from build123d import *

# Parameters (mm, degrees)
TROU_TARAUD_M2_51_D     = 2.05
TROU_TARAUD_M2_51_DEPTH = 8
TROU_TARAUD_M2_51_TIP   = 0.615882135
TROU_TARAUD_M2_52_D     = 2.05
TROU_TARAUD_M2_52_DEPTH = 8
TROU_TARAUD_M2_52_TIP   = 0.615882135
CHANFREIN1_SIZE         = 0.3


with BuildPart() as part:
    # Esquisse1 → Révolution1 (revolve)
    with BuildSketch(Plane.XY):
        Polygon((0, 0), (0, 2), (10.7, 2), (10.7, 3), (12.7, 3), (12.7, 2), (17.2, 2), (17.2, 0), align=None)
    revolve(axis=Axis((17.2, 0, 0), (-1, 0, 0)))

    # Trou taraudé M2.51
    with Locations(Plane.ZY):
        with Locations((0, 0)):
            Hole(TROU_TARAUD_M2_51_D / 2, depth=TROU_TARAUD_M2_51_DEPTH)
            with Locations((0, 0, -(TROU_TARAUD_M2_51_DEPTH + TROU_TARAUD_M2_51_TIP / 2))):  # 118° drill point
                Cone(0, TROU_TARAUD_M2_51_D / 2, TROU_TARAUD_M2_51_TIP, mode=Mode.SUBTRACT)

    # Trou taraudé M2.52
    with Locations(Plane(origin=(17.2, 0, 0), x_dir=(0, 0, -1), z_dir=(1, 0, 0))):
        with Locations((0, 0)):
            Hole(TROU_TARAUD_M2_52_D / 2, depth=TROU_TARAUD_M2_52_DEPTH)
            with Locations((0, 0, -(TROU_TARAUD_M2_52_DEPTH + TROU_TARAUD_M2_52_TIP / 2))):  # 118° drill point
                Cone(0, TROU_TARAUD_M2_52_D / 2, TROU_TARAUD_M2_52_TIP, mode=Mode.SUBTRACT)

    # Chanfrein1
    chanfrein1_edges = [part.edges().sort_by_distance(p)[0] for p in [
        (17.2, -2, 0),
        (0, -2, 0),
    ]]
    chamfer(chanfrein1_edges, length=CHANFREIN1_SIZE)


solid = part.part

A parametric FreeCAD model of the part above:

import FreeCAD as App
import Part
import Sketcher


def edges_at(feature, points):
    """Names of the edges that pass closest to the given points."""
    edges = feature.Shape.Edges
    near = lambda p: min(range(len(edges)), key=lambda i: edges[i].distToShape(Part.Vertex(*p))[0])
    return sorted({f"Edge{near(p) + 1}" for p in points})

doc = App.newDocument("Part")
params = doc.addObject("Spreadsheet::Sheet", "Params")
for row, (alias, value) in enumerate([
    ("sketch1_width", "2 mm"),
    ("sketch1_height", "1 mm"),
    ("sketch1_width2", "17.2 mm"),
    ("sketch1_width3", "4.5 mm"),
    ("revolution_angle", "360 deg"),
    ("sketch2_diameter", "2.05 mm"),
    ("hole_diameter", "2.05 mm"),
    ("hole_depth", "8 mm"),
    ("sketch3_diameter", "2.05 mm"),
    ("hole2_diameter", "2.05 mm"),
    ("hole2_depth", "8 mm"),
    ("chamfer_size", "0.3 mm"),
], start=1):
    params.set(f"A{row}", alias)
    params.set(f"B{row}", "=" + value)
    params.setAlias(f"B{row}", alias)

body = doc.addObject("PartDesign::Body", "Body")

# Sketch on XY plane
sketch1 = body.newObject("Sketcher::SketchObject", "Sketch")
sketch1.AttachmentSupport = (doc.getObject("XY_Plane"), [""])
sketch1.MapMode = "FlatFace"
sketch1.addGeometry([
    Part.LineSegment(App.Vector(0, 2, 0), App.Vector(0, 0, 0)),  # 0
    Part.LineSegment(App.Vector(0, 0, 0), App.Vector(17.2, 0, 0)),  # 1
    Part.LineSegment(App.Vector(17.2, 0, 0), App.Vector(17.2, 2, 0)),  # 2
    Part.LineSegment(App.Vector(17.2, 2, 0), App.Vector(12.7, 2, 0)),  # 3
    Part.LineSegment(App.Vector(12.7, 2, 0), App.Vector(12.7, 3, 0)),  # 4
    Part.LineSegment(App.Vector(12.7, 3, 0), App.Vector(10.7, 3, 0)),  # 5
    Part.LineSegment(App.Vector(10.7, 3, 0), App.Vector(10.7, 2, 0)),  # 6
    Part.LineSegment(App.Vector(10.7, 2, 0), App.Vector(0, 2, 0)),  # 7
], False)
sketch1.addConstraint([
    Sketcher.Constraint("Coincident", 0, 2, 1, 1),
    Sketcher.Constraint("Coincident", 1, 2, 2, 1),
    Sketcher.Constraint("Coincident", 2, 2, 3, 1),
    Sketcher.Constraint("Coincident", 3, 2, 4, 1),
    Sketcher.Constraint("Coincident", 4, 2, 5, 1),
    Sketcher.Constraint("Coincident", 5, 2, 6, 1),
    Sketcher.Constraint("Coincident", 6, 2, 7, 1),
    Sketcher.Constraint("Coincident", 7, 2, 0, 1),
    Sketcher.Constraint("Vertical", 0),
    Sketcher.Constraint("Horizontal", 1),
    Sketcher.Constraint("Vertical", 2),
    Sketcher.Constraint("Horizontal", 3),
    Sketcher.Constraint("Vertical", 4),
    Sketcher.Constraint("Horizontal", 5),
    Sketcher.Constraint("Vertical", 6),
    Sketcher.Constraint("Horizontal", 7),
    Sketcher.Constraint("Coincident", 0, 2, -1, 1),
    Sketcher.Constraint("Horizontal", 3, 2, 6, 2),
    Sketcher.Constraint("Equal", 5, 0),
    Sketcher.Constraint("DistanceX", 5, 2, 5, 1, 2.0),
    Sketcher.Constraint("DistanceY", 4, 1, 4, 2, 1.0),
    Sketcher.Constraint("DistanceX", 1, 1, 1, 2, 17.2),
    Sketcher.Constraint("DistanceX", 3, 2, 3, 1, 4.5),
])
sketch1.setExpression("Constraints[19]", "Params.sketch1_width")
sketch1.setExpression("Constraints[20]", "Params.sketch1_height")
sketch1.setExpression("Constraints[21]", "Params.sketch1_width2")
sketch1.setExpression("Constraints[22]", "Params.sketch1_width3")
revolution = body.newObject("PartDesign::Revolution", "Revolution")
revolution.Profile = sketch1
revolution.ReferenceAxis = (sketch1, ["H_Axis"])
revolution.setExpression("Angle", "Params.revolution_angle")

# Sketch on YZ plane
sketch2 = body.newObject("Sketcher::SketchObject", "Sketch001")
sketch2.AttachmentSupport = (doc.getObject("YZ_Plane"), [""])
sketch2.MapMode = "FlatFace"
sketch2.addGeometry(Part.Circle(App.Vector(0, 0, 0), App.Vector(0, 0, 1), 1.025), False)
sketch2.addConstraint([
    Sketcher.Constraint("Coincident", 0, 3, -1, 1),
    Sketcher.Constraint("Diameter", 0, 2.05),
])
sketch2.setExpression("Constraints[1]", "Params.sketch2_diameter")
doc.recompute()
hole = body.newObject("PartDesign::Hole", "Hole")
hole.Profile = sketch2
hole.ThreadType = "None"
hole.setExpression("Diameter", "Params.hole_diameter")
hole.DepthType = "Dimension"
hole.setExpression("Depth", "Params.hole_depth")
hole.DrillPoint = "Angled"
hole.DrillPointAngle = 118
hole.Reversed = True

# Sketch on YZ plane
sketch3 = body.newObject("Sketcher::SketchObject", "Sketch002")
sketch3.AttachmentSupport = (doc.getObject("YZ_Plane"), [""])
sketch3.MapMode = "FlatFace"
sketch3.AttachmentOffset = App.Placement(App.Vector(0, 0, 17.2), App.Rotation())
sketch3.addGeometry(Part.Circle(App.Vector(0, 0, 0), App.Vector(0, 0, 1), 1.025), False)
sketch3.addConstraint([
    Sketcher.Constraint("Coincident", 0, 3, -1, 1),
    Sketcher.Constraint("Diameter", 0, 2.05),
])
sketch3.setExpression("Constraints[1]", "Params.sketch3_diameter")
doc.recompute()
hole2 = body.newObject("PartDesign::Hole", "Hole001")
hole2.Profile = sketch3
hole2.ThreadType = "None"
hole2.setExpression("Diameter", "Params.hole2_diameter")
hole2.DepthType = "Dimension"
hole2.setExpression("Depth", "Params.hole2_depth")
hole2.DrillPoint = "Angled"
hole2.DrillPointAngle = 118
doc.recompute()

chamfer = body.newObject("PartDesign::Chamfer", "Chamfer")
chamfer.Base = (hole2, edges_at(hole2, [(17.2, -2, 0), (0, -2, 0)]))
chamfer.setExpression("Size", "Params.chamfer_size")

doc.recompute()
